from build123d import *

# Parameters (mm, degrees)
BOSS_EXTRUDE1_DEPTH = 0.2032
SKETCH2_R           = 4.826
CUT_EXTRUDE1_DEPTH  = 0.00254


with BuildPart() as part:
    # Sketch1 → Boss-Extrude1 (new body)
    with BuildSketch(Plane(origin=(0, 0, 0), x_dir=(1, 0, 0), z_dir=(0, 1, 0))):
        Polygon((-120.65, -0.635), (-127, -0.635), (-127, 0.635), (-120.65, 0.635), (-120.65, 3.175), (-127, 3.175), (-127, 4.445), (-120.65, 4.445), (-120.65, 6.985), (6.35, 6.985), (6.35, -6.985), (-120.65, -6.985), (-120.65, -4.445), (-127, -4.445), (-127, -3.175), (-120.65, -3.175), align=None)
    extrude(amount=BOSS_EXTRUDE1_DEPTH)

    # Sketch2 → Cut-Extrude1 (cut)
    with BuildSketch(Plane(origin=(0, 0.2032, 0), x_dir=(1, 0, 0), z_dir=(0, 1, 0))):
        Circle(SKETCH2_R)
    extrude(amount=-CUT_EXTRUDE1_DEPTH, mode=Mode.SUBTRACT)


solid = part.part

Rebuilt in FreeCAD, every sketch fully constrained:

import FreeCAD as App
import Part
import Sketcher
Q = App.Units.Quantity

doc = App.newDocument("Part")
params = doc.addObject("Spreadsheet::Sheet", "Params")
for row, (alias, value) in enumerate([
    ("sketch1_width", "5 in"),
    ("sketch1_height", "0.1 in"),
    ("sketch1_width2", "0.25 in"),
    ("sketch1_height2", "0.05 in"),
    ("pad1_length", "0.008 in"),
    ("sketch2_diameter", "0.38 in"),
    ("pocket1_length", "0.0001 in"),
], start=1):
    params.set(f"A{row}", alias)
    params.set(f"B{row}", "=" + value)
    params.setAlias(f"B{row}", alias)

body = doc.addObject("PartDesign::Body", "Body")

sketch1 = body.newObject("Sketcher::SketchObject", "Sketch")
sketch1.AttachmentSupport = (doc.getObject("XZ_Plane"), [""])
sketch1.MapMode = "FlatFace"
sketch1.addGeometry(Part.LineSegment(App.Vector(-127, 0.6, 0), App.Vector(-120.7, 0.6, 0)), False)
sketch1.addGeometry(Part.LineSegment(App.Vector(-120.7, 0.6, 0), App.Vector(-120.7, 3.2, 0)), False)
sketch1.addGeometry(Part.LineSegment(App.Vector(-120.7, 3.2, 0), App.Vector(-127, 3.2, 0)), False)
sketch1.addGeometry(Part.LineSegment(App.Vector(-127, 3.2, 0), App.Vector(-127, 4.4, 0)), False)
sketch1.addGeometry(Part.LineSegment(App.Vector(-127, 4.4, 0), App.Vector(-120.7, 4.4, 0)), False)
sketch1.addGeometry(Part.LineSegment(App.Vector(-120.7, 4.4, 0), App.Vector(-120.7, 7, 0)), False)
sketch1.addGeometry(Part.LineSegment(App.Vector(-120.7, 7, 0), App.Vector(6.3, 7, 0)), False)
sketch1.addGeometry(Part.LineSegment(App.Vector(6.3, 7, 0), App.Vector(6.3, -7, 0)), False)
sketch1.addGeometry(Part.LineSegment(App.Vector(6.3, -7, 0), App.Vector(-120.7, -7, 0)), False)
sketch1.addGeometry(Part.LineSegment(App.Vector(-120.7, -7, 0), App.Vector(-120.7, -4.4, 0)), False)
sketch1.addGeometry(Part.LineSegment(App.Vector(-120.7, -4.4, 0), App.Vector(-127, -4.4, 0)), False)
sketch1.addGeometry(Part.LineSegment(App.Vector(-127, -4.4, 0), App.Vector(-127, -3.2, 0)), False)
sketch1.addGeometry(Part.LineSegment(App.Vector(-127, -3.2, 0), App.Vector(-120.7, -3.2, 0)), False)
sketch1.addGeometry(Part.LineSegment(App.Vector(-120.7, -3.2, 0), App.Vector(-120.7, -0.6, 0)), False)
sketch1.addGeometry(Part.LineSegment(App.Vector(-120.7, -0.6, 0), App.Vector(-127, -0.6, 0)), False)
sketch1.addGeometry(Part.LineSegment(App.Vector(-127, -0.6, 0), App.Vector(-127, 0.6, 0)), False)
sketch1.addConstraint(Sketcher.Constraint("Coincident", 0, 2, 1, 1))
sketch1.addConstraint(Sketcher.Constraint("Coincident", 1, 2, 2, 1))
sketch1.addConstraint(Sketcher.Constraint("Coincident", 2, 2, 3, 1))
sketch1.addConstraint(Sketcher.Constraint("Coincident", 3, 2, 4, 1))
sketch1.addConstraint(Sketcher.Constraint("Coincident", 4, 2, 5, 1))
sketch1.addConstraint(Sketcher.Constraint("Coincident", 5, 2, 6, 1))
sketch1.addConstraint(Sketcher.Constraint("Coincident", 6, 2, 7, 1))
sketch1.addConstraint(Sketcher.Constraint("Coincident", 7, 2, 8, 1))
sketch1.addConstraint(Sketcher.Constraint("Coincident", 8, 2, 9, 1))
sketch1.addConstraint(Sketcher.Constraint("Coincident", 9, 2, 10, 1))
sketch1.addConstraint(Sketcher.Constraint("Coincident", 10, 2, 11, 1))
sketch1.addConstraint(Sketcher.Constraint("Coincident", 11, 2, 12, 1))
sketch1.addConstraint(Sketcher.Constraint("Coincident", 12, 2, 13, 1))
sketch1.addConstraint(Sketcher.Constraint("Coincident", 13, 2, 14, 1))
sketch1.addConstraint(Sketcher.Constraint("Coincident", 14, 2, 15, 1))
sketch1.addConstraint(Sketcher.Constraint("Coincident", 15, 2, 0, 1))
sketch1.addConstraint(Sketcher.Constraint("Horizontal", 0))
sketch1.addConstraint(Sketcher.Constraint("Vertical", 1))
sketch1.addConstraint(Sketcher.Constraint("Horizontal", 2))
sketch1.addConstraint(Sketcher.Constraint("Vertical", 3))
sketch1.addConstraint(Sketcher.Constraint("Horizontal", 4))
sketch1.addConstraint(Sketcher.Constraint("Vertical", 5))
sketch1.addConstraint(Sketcher.Constraint("Horizontal", 6))
sketch1.addConstraint(Sketcher.Constraint("Vertical", 7))
sketch1.addConstraint(Sketcher.Constraint("Horizontal", 8))
sketch1.addConstraint(Sketcher.Constraint("Vertical", 9))
sketch1.addConstraint(Sketcher.Constraint("Horizontal", 10))
sketch1.addConstraint(Sketcher.Constraint("Vertical", 11))
sketch1.addConstraint(Sketcher.Constraint("Horizontal", 12))
sketch1.addConstraint(Sketcher.Constraint("Vertical", 13))
sketch1.addConstraint(Sketcher.Constraint("Horizontal", 14))
sketch1.addConstraint(Sketcher.Constraint("Vertical", 15))
sketch1.addConstraint(Sketcher.Constraint("Symmetric", 5, 2, 8, 2, -1))
sketch1.addConstraint(Sketcher.Constraint("Symmetric", 3, 2, 10, 2, -1))
sketch1.addConstraint(Sketcher.Constraint("Symmetric", 1, 2, 12, 2, -1))
sketch1.addConstraint(Sketcher.Constraint("Vertical", 1, 2, 4, 2))
sketch1.addConstraint(Sketcher.Constraint("Vertical", 11, 2, 14, 2))
sketch1.addConstraint(Sketcher.Constraint("Equal", 1, 5))
sketch1.addConstraint(Sketcher.Constraint("Equal", 9, 13))
sketch1.addConstraint(Sketcher.Constraint("Equal", 11, 15))
sketch1.addConstraint(Sketcher.Constraint("DistanceX", 6, 1, 6, 2, Q("5 in")))
sketch1.addConstraint(Sketcher.Constraint("DistanceY", 1, 1, 1, 2, Q("0.1 in")))
sketch1.addConstraint(Sketcher.Constraint("DistanceX", 2, 2, -1, 1, Q("5 in")))
sketch1.addConstraint(Sketcher.Constraint("DistanceX", 0, 1, 0, 2, Q("0.25 in")))
sketch1.addConstraint(Sketcher.Constraint("DistanceY", 3, 1, 3, 2, Q("0.05 in")))
sketch1.setExpression("Constraints[40]", "Params.sketch1_width")
sketch1.setExpression("Constraints[41]", "Params.sketch1_height")
sketch1.setExpression("Constraints[43]", "Params.sketch1_width2")
sketch1.setExpression("Constraints[44]", "Params.sketch1_height2")
pad1 = body.newObject("PartDesign::Pad", "Pad")
pad1.Profile = sketch1
pad1.setExpression("Length", "Params.pad1_length")
pad1.Reversed = True

sketch2 = body.newObject("Sketcher::SketchObject", "Sketch001")
sketch2.AttachmentSupport = (doc.getObject("XZ_Plane"), [""])
sketch2.MapMode = "FlatFace"
sketch2.AttachmentOffset = App.Placement(App.Vector(0, 0, -0.008 * 25.4), App.Rotation())
sketch2.addGeometry(Part.Circle(App.Vector(0, 0, 0), App.Vector(0, 0, 1), 4.8), False)
sketch2.addConstraint(Sketcher.Constraint("Coincident", 0, 3, -1, 1))
sketch2.addConstraint(Sketcher.Constraint("Diameter", 0, Q("0.38 in")))
sketch2.setExpression("Constraints[1]", "Params.sketch2_diameter")
pocket1 = body.newObject("PartDesign::Pocket", "Pocket")
pocket1.Profile = sketch2
pocket1.setExpression("Length", "Params.pocket1_length")
pocket1.Reversed = True

doc.recompute()
